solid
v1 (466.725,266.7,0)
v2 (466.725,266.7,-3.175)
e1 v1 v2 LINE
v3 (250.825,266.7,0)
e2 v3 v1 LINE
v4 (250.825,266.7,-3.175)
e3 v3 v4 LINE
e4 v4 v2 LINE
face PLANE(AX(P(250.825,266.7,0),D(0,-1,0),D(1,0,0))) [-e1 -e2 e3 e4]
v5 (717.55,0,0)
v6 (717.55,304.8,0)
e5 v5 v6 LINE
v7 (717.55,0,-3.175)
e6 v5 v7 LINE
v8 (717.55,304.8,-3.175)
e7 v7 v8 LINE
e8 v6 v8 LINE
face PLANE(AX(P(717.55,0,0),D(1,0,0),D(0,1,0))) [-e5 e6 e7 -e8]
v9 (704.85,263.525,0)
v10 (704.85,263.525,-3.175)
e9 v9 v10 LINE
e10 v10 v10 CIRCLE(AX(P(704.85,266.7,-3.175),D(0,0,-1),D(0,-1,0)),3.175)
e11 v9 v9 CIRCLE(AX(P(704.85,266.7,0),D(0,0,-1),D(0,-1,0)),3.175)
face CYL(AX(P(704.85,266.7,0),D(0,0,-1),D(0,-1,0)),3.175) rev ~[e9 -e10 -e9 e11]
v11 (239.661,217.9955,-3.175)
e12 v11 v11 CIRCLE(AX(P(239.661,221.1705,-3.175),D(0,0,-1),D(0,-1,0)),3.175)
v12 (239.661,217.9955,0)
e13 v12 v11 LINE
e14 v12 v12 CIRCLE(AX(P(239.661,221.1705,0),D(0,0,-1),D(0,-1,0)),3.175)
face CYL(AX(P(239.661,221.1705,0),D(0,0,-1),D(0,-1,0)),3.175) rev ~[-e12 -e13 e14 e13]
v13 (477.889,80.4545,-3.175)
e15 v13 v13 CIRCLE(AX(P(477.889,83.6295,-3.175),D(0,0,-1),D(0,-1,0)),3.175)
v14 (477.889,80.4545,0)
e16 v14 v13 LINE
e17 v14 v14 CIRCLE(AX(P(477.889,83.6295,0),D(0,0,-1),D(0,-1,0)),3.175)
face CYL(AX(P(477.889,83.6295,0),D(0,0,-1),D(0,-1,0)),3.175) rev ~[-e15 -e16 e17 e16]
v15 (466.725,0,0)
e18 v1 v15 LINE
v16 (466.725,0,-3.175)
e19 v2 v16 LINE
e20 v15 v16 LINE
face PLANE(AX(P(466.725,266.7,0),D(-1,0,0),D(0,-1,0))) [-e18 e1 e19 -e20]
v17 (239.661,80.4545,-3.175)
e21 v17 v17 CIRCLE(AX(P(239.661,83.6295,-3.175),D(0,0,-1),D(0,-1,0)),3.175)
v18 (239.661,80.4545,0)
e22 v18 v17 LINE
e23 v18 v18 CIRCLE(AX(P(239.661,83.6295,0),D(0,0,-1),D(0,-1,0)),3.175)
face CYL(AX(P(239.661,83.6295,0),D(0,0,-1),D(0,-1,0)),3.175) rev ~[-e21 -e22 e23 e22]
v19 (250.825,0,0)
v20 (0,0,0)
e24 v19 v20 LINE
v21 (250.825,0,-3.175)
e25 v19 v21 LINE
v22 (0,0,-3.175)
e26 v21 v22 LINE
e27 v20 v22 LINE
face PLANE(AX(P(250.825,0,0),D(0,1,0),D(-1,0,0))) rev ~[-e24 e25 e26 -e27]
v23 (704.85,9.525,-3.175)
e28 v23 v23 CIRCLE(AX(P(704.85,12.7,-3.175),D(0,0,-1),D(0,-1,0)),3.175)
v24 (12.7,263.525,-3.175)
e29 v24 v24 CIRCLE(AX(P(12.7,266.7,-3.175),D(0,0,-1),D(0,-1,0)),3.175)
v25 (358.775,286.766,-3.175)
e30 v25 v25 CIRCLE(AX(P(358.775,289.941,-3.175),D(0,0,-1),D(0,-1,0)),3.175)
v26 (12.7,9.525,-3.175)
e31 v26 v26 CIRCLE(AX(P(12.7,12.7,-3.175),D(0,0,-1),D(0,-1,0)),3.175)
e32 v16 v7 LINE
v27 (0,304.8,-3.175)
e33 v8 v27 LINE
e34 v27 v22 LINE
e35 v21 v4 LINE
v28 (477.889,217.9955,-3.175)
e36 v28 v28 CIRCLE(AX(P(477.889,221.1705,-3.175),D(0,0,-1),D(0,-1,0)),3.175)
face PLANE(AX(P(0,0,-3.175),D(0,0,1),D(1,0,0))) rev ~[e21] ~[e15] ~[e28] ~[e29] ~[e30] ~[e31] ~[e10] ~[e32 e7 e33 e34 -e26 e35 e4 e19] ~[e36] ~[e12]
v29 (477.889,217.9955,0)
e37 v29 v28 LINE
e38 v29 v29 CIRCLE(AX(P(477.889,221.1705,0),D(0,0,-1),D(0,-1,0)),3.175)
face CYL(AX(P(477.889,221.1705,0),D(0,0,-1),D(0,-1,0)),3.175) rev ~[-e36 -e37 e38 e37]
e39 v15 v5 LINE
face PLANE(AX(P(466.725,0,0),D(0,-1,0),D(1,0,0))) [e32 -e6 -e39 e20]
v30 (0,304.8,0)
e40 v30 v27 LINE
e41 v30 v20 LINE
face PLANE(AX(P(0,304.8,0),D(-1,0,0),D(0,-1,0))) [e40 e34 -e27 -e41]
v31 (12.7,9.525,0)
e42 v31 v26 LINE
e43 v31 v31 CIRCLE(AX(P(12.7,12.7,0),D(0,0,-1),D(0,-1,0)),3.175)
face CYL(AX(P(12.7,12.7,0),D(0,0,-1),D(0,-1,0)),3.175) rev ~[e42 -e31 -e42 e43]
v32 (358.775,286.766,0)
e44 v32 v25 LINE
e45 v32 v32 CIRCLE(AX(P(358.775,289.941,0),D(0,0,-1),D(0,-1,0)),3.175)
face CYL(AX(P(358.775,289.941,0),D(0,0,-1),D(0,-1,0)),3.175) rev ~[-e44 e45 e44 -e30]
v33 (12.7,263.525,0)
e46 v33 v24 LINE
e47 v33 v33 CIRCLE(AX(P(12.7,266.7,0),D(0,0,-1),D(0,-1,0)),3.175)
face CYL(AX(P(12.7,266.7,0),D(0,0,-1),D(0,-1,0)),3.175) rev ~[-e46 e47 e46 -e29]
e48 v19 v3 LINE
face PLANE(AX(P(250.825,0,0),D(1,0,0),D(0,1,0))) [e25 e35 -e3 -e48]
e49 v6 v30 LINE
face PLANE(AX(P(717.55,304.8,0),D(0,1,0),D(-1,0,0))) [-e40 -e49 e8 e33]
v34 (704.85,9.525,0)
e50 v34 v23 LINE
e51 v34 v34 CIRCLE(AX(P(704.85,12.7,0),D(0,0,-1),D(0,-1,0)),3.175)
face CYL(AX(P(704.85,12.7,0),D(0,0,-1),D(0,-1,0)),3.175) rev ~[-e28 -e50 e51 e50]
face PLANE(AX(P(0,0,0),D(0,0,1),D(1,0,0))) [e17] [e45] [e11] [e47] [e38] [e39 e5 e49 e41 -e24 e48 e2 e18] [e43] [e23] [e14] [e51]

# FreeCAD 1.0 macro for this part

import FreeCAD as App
import Part
import Sketcher
from FreeCAD import Vector
Q = App.Units.Quantity

doc = App.newDocument("Part")
body = doc.addObject("PartDesign::Body", "Body")

# Sketch on XY plane
sketch1 = body.newObject("Sketcher::SketchObject", "Sketch")
sketch1.AttachmentSupport = (doc.getObject("XY_Plane"), [""])
sketch1.MapMode = "FlatFace"
sketch1.addGeometry(Part.LineSegment(Vector(467, 0, 0), Vector(718, 0, 0)), False)
sketch1.addGeometry(Part.LineSegment(Vector(718, 0, 0), Vector(718, 305, 0)), False)
sketch1.addGeometry(Part.LineSegment(Vector(718, 305, 0), Vector(0, 305, 0)), False)
sketch1.addGeometry(Part.LineSegment(Vector(0, 305, 0), Vector(0, 0, 0)), False)
sketch1.addGeometry(Part.LineSegment(Vector(0, 0, 0), Vector(251, 0, 0)), False)
sketch1.addGeometry(Part.LineSegment(Vector(251, 0, 0), Vector(251, 267, 0)), False)
sketch1.addGeometry(Part.LineSegment(Vector(251, 267, 0), Vector(467, 267, 0)), False)
sketch1.addGeometry(Part.LineSegment(Vector(467, 267, 0), Vector(467, 0, 0)), False)
sketch1.addConstraint(Sketcher.Constraint("Coincident", 0, 2, 1, 1))
sketch1.addConstraint(Sketcher.Constraint("Coincident", 1, 2, 2, 1))
sketch1.addConstraint(Sketcher.Constraint("Coincident", 2, 2, 3, 1))
sketch1.addConstraint(Sketcher.Constraint("Coincident", 3, 2, 4, 1))
sketch1.addConstraint(Sketcher.Constraint("Coincident", 4, 2, 5, 1))
sketch1.addConstraint(Sketcher.Constraint("Coincident", 5, 2, 6, 1))
sketch1.addConstraint(Sketcher.Constraint("Coincident", 6, 2, 7, 1))
sketch1.addConstraint(Sketcher.Constraint("Coincident", 7, 2, 0, 1))
sketch1.addConstraint(Sketcher.Constraint("Horizontal", 0))
sketch1.addConstraint(Sketcher.Constraint("Vertical", 1))
sketch1.addConstraint(Sketcher.Constraint("Horizontal", 2))
sketch1.addConstraint(Sketcher.Constraint("Vertical", 3))
sketch1.addConstraint(Sketcher.Constraint("Horizontal", 4))
sketch1.addConstraint(Sketcher.Constraint("Vertical", 5))
sketch1.addConstraint(Sketcher.Constraint("Horizontal", 6))
sketch1.addConstraint(Sketcher.Constraint("Vertical", 7))
sketch1.addConstraint(Sketcher.Constraint("Coincident", 3, 2, -1, 1))
sketch1.addConstraint(Sketcher.Constraint("PointOnObject", 0, 2, -1))
sketch1.addConstraint(Sketcher.Constraint("Equal", 0, 4))
sketch1.addConstraint(Sketcher.Constraint("DistanceY", 1, 1, 1, 2, Q("12 in")))
sketch1.addConstraint(Sketcher.Constraint("DistanceX", 2, 2, 2, 1, Q("28.25 in")))
sketch1.addConstraint(Sketcher.Constraint("DistanceY", 5, 2, 2, 2, Q("1.5 in")))
sketch1.addConstraint(Sketcher.Constraint("DistanceX", 6, 1, 6, 2, Q("8.5 in")))
pad1 = body.newObject("PartDesign::Pad", "Pad")
pad1.Profile = sketch1
pad1.Length = Q("0.125 in")
pad1.Reversed = True

# Sketch on XY plane
sketch2 = body.newObject("Sketcher::SketchObject", "Sketch001")
sketch2.AttachmentSupport = (doc.getObject("XY_Plane"), [""])
sketch2.MapMode = "FlatFace"
sketch2.addGeometry(Part.Circle(Vector(358.8, 152.4, 0), Vector(0, 0, 1), 3.2), False)
sketch2.addGeometry(Part.Circle(Vector(358.8, 289.9, 0), Vector(0, 0, 1), 3.2), False)
sketch2.addGeometry(Part.Circle(Vector(239.7, 221.2, 0), Vector(0, 0, 1), 3.2), False)
sketch2.addGeometry(Part.Circle(Vector(239.7, 83.6, 0), Vector(0, 0, 1), 3.2), False)
sketch2.addGeometry(Part.Circle(Vector(358.8, 14.9, 0), Vector(0, 0, 1), 3.2), False)
sketch2.addGeometry(Part.Circle(Vector(477.9, 83.6, 0), Vector(0, 0, 1), 3.2), False)
sketch2.addGeometry(Part.Circle(Vector(477.9, 221.2, 0), Vector(0, 0, 1), 3.2), False)
sketch2.addConstraint(Sketcher.Constraint("Equal", 0, 1))
sketch2.addConstraint(Sketcher.Constraint("Equal", 1, 2))
sketch2.addConstraint(Sketcher.Constraint("Equal", 2, 3))
sketch2.addConstraint(Sketcher.Constraint("Equal", 3, 4))
sketch2.addConstraint(Sketcher.Constraint("Equal", 4, 5))
sketch2.addConstraint(Sketcher.Constraint("Equal", 5, 6))
sketch2.addConstraint(Sketcher.Constraint("Horizontal", 3, 3, 5, 3))
sketch2.addConstraint(Sketcher.Constraint("Horizontal", 2, 3, 6, 3))
sketch2.addConstraint(Sketcher.Constraint("Vertical", 0, 3, 1, 3))
sketch2.addConstraint(Sketcher.Constraint("Vertical", 2, 3, 3, 3))
sketch2.addConstraint(Sketcher.Constraint("Vertical", 1, 3, 4, 3))
sketch2.addConstraint(Sketcher.Constraint("Vertical", 5, 3, 6, 3))
sketch2.addConstraint(Sketcher.Constraint("Diameter", 0, Q("0.25 in")))
sketch2.addConstraint(Sketcher.Constraint("DistanceY", -1, 1, 0, 3, Q("6 in")))
sketch2.addConstraint(Sketcher.Constraint("DistanceY", 4, 3, 1, 3, Q("10.83 in")))
sketch2.addConstraint(Sketcher.Constraint("DistanceX", -1, 1, 0, 3, Q("14.125 in")))
sketch2.addConstraint(Sketcher.Constraint("DistanceY", -1, 1, 1, 3, Q("11.415 in")))
sketch2.addConstraint(Sketcher.Constraint("DistanceY", 3, 3, 2, 3, Q("5.415 in")))
sketch2.addConstraint(Sketcher.Constraint("DistanceY", -1, 1, 2, 3, Q("8.7075 in")))
sketch2.addConstraint(Sketcher.Constraint("DistanceX", -1, 1, 2, 3, Q("239.661 mm")))
sketch2.addConstraint(Sketcher.Constraint("DistanceX", -1, 1, 5, 3, Q("477.889 mm")))
doc.recompute()
hole = body.newObject("PartDesign::Hole", "Hole")
hole.Profile = sketch2
hole.ThreadType = "None"
hole.Diameter = Q("0.25 in")
hole.DepthType = "Dimension"
hole.Depth = Q("1 in")
hole.DrillPoint = "Angled"
hole.DrillPointAngle = 118

# Sketch on XY plane
sketch3 = body.newObject("Sketcher::SketchObject", "Sketch002")
sketch3.AttachmentSupport = (doc.getObject("XY_Plane"), [""])
sketch3.MapMode = "FlatFace"
sketch3.addGeometry(Part.Circle(Vector(12.7, 266.7, 0), Vector(0, 0, 1), 3.2), False)
sketch3.addGeometry(Part.Circle(Vector(12.7, 12.7, 0), Vector(0, 0, 1), 3.2), False)
sketch3.addGeometry(Part.Circle(Vector(704.9, 12.7, 0), Vector(0, 0, 1), 3.2), False)
sketch3.addGeometry(Part.Circle(Vector(704.9, 266.7, 0), Vector(0, 0, 1), 3.2), False)
sketch3.addConstraint(Sketcher.Constraint("Equal", 0, 1))
sketch3.addConstraint(Sketcher.Constraint("Equal", 1, 2))
sketch3.addConstraint(Sketcher.Constraint("Equal", 2, 3))
sketch3.addConstraint(Sketcher.Constraint("Horizontal", 1, 3, 2, 3))
sketch3.addConstraint(Sketcher.Constraint("Horizontal", 0, 3, 3, 3))
sketch3.addConstraint(Sketcher.Constraint("Vertical", 0, 3, 1, 3))
sketch3.addConstraint(Sketcher.Constraint("Vertical", 2, 3, 3, 3))
sketch3.addConstraint(Sketcher.Constraint("Diameter", 0, Q("0.25 in")))
sketch3.addConstraint(Sketcher.Constraint("DistanceY", 1, 3, 0, 3, Q("10 in")))
sketch3.addConstraint(Sketcher.Constraint("DistanceX", -1, 1, 0, 3, Q("0.5 in")))
sketch3.addConstraint(Sketcher.Constraint("DistanceY", -1, 1, 0, 3, Q("10.5 in")))
sketch3.addConstraint(Sketcher.Constraint("DistanceX", -1, 1, 2, 3, Q("27.75 in")))
doc.recompute()
hole2 = body.newObject("PartDesign::Hole", "Hole001")
hole2.Profile = sketch3
hole2.ThreadType = "None"
hole2.Diameter = Q("0.25 in")
hole2.DepthType = "Dimension"
hole2.Depth = Q("1 in")
hole2.DrillPoint = "Angled"
hole2.DrillPointAngle = 118

doc.recompute()
